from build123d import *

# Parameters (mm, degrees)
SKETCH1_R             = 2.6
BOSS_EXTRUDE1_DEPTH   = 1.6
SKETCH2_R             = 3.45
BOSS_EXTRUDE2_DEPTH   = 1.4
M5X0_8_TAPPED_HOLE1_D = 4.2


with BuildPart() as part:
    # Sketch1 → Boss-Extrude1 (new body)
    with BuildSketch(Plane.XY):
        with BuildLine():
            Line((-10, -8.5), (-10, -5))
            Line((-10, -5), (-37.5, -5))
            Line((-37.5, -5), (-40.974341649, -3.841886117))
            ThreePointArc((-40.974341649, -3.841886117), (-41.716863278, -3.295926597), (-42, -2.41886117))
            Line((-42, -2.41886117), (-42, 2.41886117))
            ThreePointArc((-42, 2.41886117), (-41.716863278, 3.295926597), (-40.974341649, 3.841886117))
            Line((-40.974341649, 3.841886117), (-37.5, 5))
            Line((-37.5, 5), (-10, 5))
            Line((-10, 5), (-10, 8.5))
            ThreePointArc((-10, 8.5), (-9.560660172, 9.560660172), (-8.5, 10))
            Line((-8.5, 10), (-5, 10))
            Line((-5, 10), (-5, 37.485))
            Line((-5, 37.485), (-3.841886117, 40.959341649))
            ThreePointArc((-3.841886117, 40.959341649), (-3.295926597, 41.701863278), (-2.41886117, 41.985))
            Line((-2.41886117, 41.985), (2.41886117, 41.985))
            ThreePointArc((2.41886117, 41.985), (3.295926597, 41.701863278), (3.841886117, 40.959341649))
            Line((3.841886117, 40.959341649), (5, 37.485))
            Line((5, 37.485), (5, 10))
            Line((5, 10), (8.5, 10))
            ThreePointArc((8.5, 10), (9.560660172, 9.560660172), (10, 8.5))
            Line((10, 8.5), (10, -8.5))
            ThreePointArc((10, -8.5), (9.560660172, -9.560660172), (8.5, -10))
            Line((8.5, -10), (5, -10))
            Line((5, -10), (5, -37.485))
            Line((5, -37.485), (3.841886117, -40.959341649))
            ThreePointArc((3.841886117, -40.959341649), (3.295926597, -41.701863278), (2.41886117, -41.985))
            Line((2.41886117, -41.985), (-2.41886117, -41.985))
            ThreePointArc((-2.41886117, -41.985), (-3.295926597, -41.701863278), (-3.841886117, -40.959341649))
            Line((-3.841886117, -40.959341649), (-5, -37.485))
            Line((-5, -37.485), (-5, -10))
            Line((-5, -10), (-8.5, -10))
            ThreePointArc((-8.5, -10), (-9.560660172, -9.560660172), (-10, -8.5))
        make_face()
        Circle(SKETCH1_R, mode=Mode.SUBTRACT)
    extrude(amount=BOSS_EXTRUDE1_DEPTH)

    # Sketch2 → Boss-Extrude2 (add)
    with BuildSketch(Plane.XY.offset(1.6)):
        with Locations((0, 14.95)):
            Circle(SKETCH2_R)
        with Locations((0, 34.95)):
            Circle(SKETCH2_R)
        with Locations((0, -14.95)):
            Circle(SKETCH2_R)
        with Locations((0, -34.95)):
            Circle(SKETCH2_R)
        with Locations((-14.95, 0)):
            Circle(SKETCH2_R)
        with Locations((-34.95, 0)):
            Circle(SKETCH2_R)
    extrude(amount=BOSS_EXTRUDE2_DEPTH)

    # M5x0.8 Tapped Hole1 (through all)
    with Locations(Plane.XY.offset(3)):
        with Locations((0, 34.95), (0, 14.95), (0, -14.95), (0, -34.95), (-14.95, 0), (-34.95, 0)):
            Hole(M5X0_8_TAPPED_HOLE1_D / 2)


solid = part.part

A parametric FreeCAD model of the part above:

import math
import FreeCAD as App
import Part
import Sketcher
from FreeCAD import Vector

doc = App.newDocument("Part")
body = doc.addObject("PartDesign::Body", "Body")

# Sketch on XY plane
sketch1 = body.newObject("Sketcher::SketchObject", "Sketch")
sketch1.AttachmentSupport = (doc.getObject("XY_Plane"), [""])
sketch1.MapMode = "FlatFace"
sketch1.addGeometry(Part.LineSegment(Vector(-10, -5, 0), Vector(-10, -8.5, 0)), False)
sketch1.addGeometry(Part.ArcOfCircle(Part.Circle(Vector(-8.5, -8.5, 0), Vector(0, 0, 1), 1.5), math.radians(180), math.radians(270)), False)
sketch1.addGeometry(Part.LineSegment(Vector(-8.5, -10, 0), Vector(-5, -10, 0)), False)
sketch1.addGeometry(Part.LineSegment(Vector(-5, -10, 0), Vector(-5, -37.485, 0)), False)
sketch1.addGeometry(Part.LineSegment(Vector(-5, -37.485, 0), Vector(-3.841886, -40.959342, 0)), False)
sketch1.addGeometry(Part.ArcOfCircle(Part.Circle(Vector(-2.418861, -40.485, 0), Vector(0, 0, 1), 1.5), math.radians(-161.565051), math.radians(-90)), False)
sketch1.addGeometry(Part.LineSegment(Vector(-2.418861, -41.985, 0), Vector(2.418861, -41.985, 0)), False)
sketch1.addGeometry(Part.ArcOfCircle(Part.Circle(Vector(2.418861, -40.485, 0), Vector(0, 0, 1), 1.5), math.radians(-90), math.radians(-18.434949)), False)
sketch1.addGeometry(Part.LineSegment(Vector(3.841886, -40.959342, 0), Vector(5, -37.485, 0)), False)
sketch1.addGeometry(Part.LineSegment(Vector(5, -37.485, 0), Vector(5, -10, 0)), False)
sketch1.addGeometry(Part.LineSegment(Vector(5, -10, 0), Vector(8.5, -10, 0)), False)
sketch1.addGeometry(Part.ArcOfCircle(Part.Circle(Vector(8.5, -8.5, 0), Vector(0, 0, 1), 1.5), math.radians(-90), math.radians(0)), False)
sketch1.addGeometry(Part.LineSegment(Vector(10, -8.5, 0), Vector(10, 8.5, 0)), False)
sketch1.addGeometry(Part.ArcOfCircle(Part.Circle(Vector(8.5, 8.5, 0), Vector(0, 0, 1), 1.5), math.radians(0), math.radians(90)), False)
sketch1.addGeometry(Part.LineSegment(Vector(8.5, 10, 0), Vector(5, 10, 0)), False)
sketch1.addGeometry(Part.LineSegment(Vector(5, 10, 0), Vector(5, 37.485, 0)), False)
sketch1.addGeometry(Part.LineSegment(Vector(5, 37.485, 0), Vector(3.841886, 40.959342, 0)), False)
sketch1.addGeometry(Part.ArcOfCircle(Part.Circle(Vector(2.418861, 40.485, 0), Vector(0, 0, 1), 1.5), math.radians(18.434949), math.radians(90)), False)
sketch1.addGeometry(Part.LineSegment(Vector(2.418861, 41.985, 0), Vector(-2.418861, 41.985, 0)), False)
sketch1.addGeometry(Part.ArcOfCircle(Part.Circle(Vector(-2.418861, 40.485, 0), Vector(0, 0, 1), 1.5), math.radians(90), math.radians(161.565051)), False)
sketch1.addGeometry(Part.LineSegment(Vector(-3.841886, 40.959342, 0), Vector(-5, 37.485, 0)), False)
sketch1.addGeometry(Part.LineSegment(Vector(-5, 37.485, 0), Vector(-5, 10, 0)), False)
sketch1.addGeometry(Part.LineSegment(Vector(-5, 10, 0), Vector(-8.5, 10, 0)), False)
sketch1.addGeometry(Part.ArcOfCircle(Part.Circle(Vector(-8.5, 8.5, 0), Vector(0, 0, 1), 1.5), math.radians(90), math.radians(180)), False)
sketch1.addGeometry(Part.LineSegment(Vector(-10, 8.5, 0), Vector(-10, 5, 0)), False)
sketch1.addGeometry(Part.LineSegment(Vector(-10, 5, 0), Vector(-37.5, 5, 0)), False)
sketch1.addGeometry(Part.LineSegment(Vector(-37.5, 5, 0), Vector(-40.974342, 3.841886, 0)), False)
sketch1.addGeometry(Part.ArcOfCircle(Part.Circle(Vector(-40.5, 2.418861, 0), Vector(0, 0, 1), 1.5), math.radians(108.434949), math.radians(180)), False)
sketch1.addGeometry(Part.LineSegment(Vector(-42, 2.418861, 0), Vector(-42, -2.418861, 0)), False)
sketch1.addGeometry(Part.ArcOfCircle(Part.Circle(Vector(-40.5, -2.418861, 0), Vector(0, 0, 1), 1.5), math.radians(180), math.radians(251.565051)), False)
sketch1.addGeometry(Part.LineSegment(Vector(-40.974342, -3.841886, 0), Vector(-37.5, -5, 0)), False)
sketch1.addGeometry(Part.LineSegment(Vector(-37.5, -5, 0), Vector(-10, -5, 0)), False)
sketch1.addGeometry(Part.Circle(Vector(0, 0, 0), Vector(0, 0, 1), 2.6), False)
sketch1.addConstraint(Sketcher.Constraint("Tangent", 0, 2, 1, 1))
sketch1.addConstraint(Sketcher.Constraint("Tangent", 1, 2, 2, 1))
sketch1.addConstraint(Sketcher.Constraint("Coincident", 2, 2, 3, 1))
sketch1.addConstraint(Sketcher.Constraint("Coincident", 3, 2, 4, 1))
sketch1.addConstraint(Sketcher.Constraint("Tangent", 4, 2, 5, 1))
sketch1.addConstraint(Sketcher.Constraint("Tangent", 5, 2, 6, 1))
sketch1.addConstraint(Sketcher.Constraint("Tangent", 6, 2, 7, 1))
sketch1.addConstraint(Sketcher.Constraint("Tangent", 7, 2, 8, 1))
sketch1.addConstraint(Sketcher.Constraint("Coincident", 8, 2, 9, 1))
sketch1.addConstraint(Sketcher.Constraint("Coincident", 9, 2, 10, 1))
sketch1.addConstraint(Sketcher.Constraint("Tangent", 10, 2, 11, 1))
sketch1.addConstraint(Sketcher.Constraint("Tangent", 11, 2, 12, 1))
sketch1.addConstraint(Sketcher.Constraint("Tangent", 12, 2, 13, 1))
sketch1.addConstraint(Sketcher.Constraint("Tangent", 13, 2, 14, 1))
sketch1.addConstraint(Sketcher.Constraint("Coincident", 14, 2, 15, 1))
sketch1.addConstraint(Sketcher.Constraint("Coincident", 15, 2, 16, 1))
sketch1.addConstraint(Sketcher.Constraint("Tangent", 16, 2, 17, 1))
sketch1.addConstraint(Sketcher.Constraint("Tangent", 17, 2, 18, 1))
sketch1.addConstraint(Sketcher.Constraint("Tangent", 18, 2, 19, 1))
sketch1.addConstraint(Sketcher.Constraint("Tangent", 19, 2, 20, 1))
sketch1.addConstraint(Sketcher.Constraint("Coincident", 20, 2, 21, 1))
sketch1.addConstraint(Sketcher.Constraint("Coincident", 21, 2, 22, 1))
sketch1.addConstraint(Sketcher.Constraint("Tangent", 22, 2, 23, 1))
sketch1.addConstraint(Sketcher.Constraint("Tangent", 23, 2, 24, 1))
sketch1.addConstraint(Sketcher.Constraint("Coincident", 24, 2, 25, 1))
sketch1.addConstraint(Sketcher.Constraint("Coincident", 25, 2, 26, 1))
sketch1.addConstraint(Sketcher.Constraint("Tangent", 26, 2, 27, 1))
sketch1.addConstraint(Sketcher.Constraint("Tangent", 27, 2, 28, 1))
sketch1.addConstraint(Sketcher.Constraint("Tangent", 28, 2, 29, 1))
sketch1.addConstraint(Sketcher.Constraint("Tangent", 29, 2, 30, 1))
sketch1.addConstraint(Sketcher.Constraint("Coincident", 30, 2, 31, 1))
sketch1.addConstraint(Sketcher.Constraint("Coincident", 31, 2, 0, 1))
sketch1.addConstraint(Sketcher.Constraint("Vertical", 0))
sketch1.addConstraint(Sketcher.Constraint("Horizontal", 2))
sketch1.addConstraint(Sketcher.Constraint("Vertical", 3))
sketch1.addConstraint(Sketcher.Constraint("Horizontal", 6))
sketch1.addConstraint(Sketcher.Constraint("Vertical", 9))
sketch1.addConstraint(Sketcher.Constraint("Horizontal", 10))
sketch1.addConstraint(Sketcher.Constraint("Vertical", 12))
sketch1.addConstraint(Sketcher.Constraint("Horizontal", 14))
sketch1.addConstraint(Sketcher.Constraint("Vertical", 15))
sketch1.addConstraint(Sketcher.Constraint("Horizontal", 18))
sketch1.addConstraint(Sketcher.Constraint("Vertical", 21))
sketch1.addConstraint(Sketcher.Constraint("Horizontal", 22))
sketch1.addConstraint(Sketcher.Constraint("Vertical", 24))
sketch1.addConstraint(Sketcher.Constraint("Horizontal", 25))
sketch1.addConstraint(Sketcher.Constraint("Vertical", 28))
sketch1.addConstraint(Sketcher.Constraint("Horizontal", 31))
sketch1.addConstraint(Sketcher.Constraint("Coincident", 32, 3, -1, 1))
sketch1.addConstraint(Sketcher.Constraint("Equal", 1, 5))
sketch1.addConstraint(Sketcher.Constraint("Equal", 5, 7))
sketch1.addConstraint(Sketcher.Constraint("Equal", 7, 11))
sketch1.addConstraint(Sketcher.Constraint("Equal", 11, 13))
sketch1.addConstraint(Sketcher.Constraint("Equal", 13, 17))
sketch1.addConstraint(Sketcher.Constraint("Equal", 17, 19))
sketch1.addConstraint(Sketcher.Constraint("Equal", 19, 23))
sketch1.addConstraint(Sketcher.Constraint("Equal", 23, 27))
sketch1.addConstraint(Sketcher.Constraint("Equal", 27, 29))
sketch1.addConstraint(Sketcher.Constraint("Symmetric", 1, 3, 13, 3, -1, 1))
sketch1.addConstraint(Sketcher.Constraint("Symmetric", 5, 3, 17, 3, -1, 1))
sketch1.addConstraint(Sketcher.Constraint("Symmetric", 11, 3, 23, 3, -1, 1))
sketch1.addConstraint(Sketcher.Constraint("Symmetric", 3, 2, 15, 2, -1, 1))
sketch1.addConstraint(Sketcher.Constraint("Symmetric", 7, 2, 19, 2, -1, 1))
sketch1.addConstraint(Sketcher.Constraint("Symmetric", 4, 2, 7, 2, -2))
sketch1.addConstraint(Sketcher.Constraint("Symmetric", 2, 2, 9, 2, -2))
sketch1.addConstraint(Sketcher.Constraint("Symmetric", 26, 2, 29, 2, -1))
sketch1.addConstraint(Sketcher.Constraint("Perpendicular", 16, 26))
sketch1.addConstraint(Sketcher.Constraint("Horizontal", 15, 2, 20, 2))
sketch1.addConstraint(Sketcher.Constraint("Vertical", 25, 2, 30, 2))
sketch1.addConstraint(Sketcher.Constraint("Equal", 22, 0))
sketch1.addConstraint(Sketcher.Constraint("Equal", 18, 28))
sketch1.addConstraint(Sketcher.Constraint("Equal", 20, 26))
sketch1.addConstraint(Sketcher.Constraint("Diameter", 32, 5.2))
sketch1.addConstraint(Sketcher.Constraint("Radius", 1, 1.5))
sketch1.addConstraint(Sketcher.Constraint("DistanceY", 12, 1, 12, 2, 17.0))
sketch1.addConstraint(Sketcher.Constraint("DistanceX", 2, 1, 2, 2, 3.5))
sketch1.addConstraint(Sketcher.Constraint("DistanceX", 25, 2, 25, 1, 27.5))
sketch1.addConstraint(Sketcher.Constraint("DistanceX", 27, 2, -1, 1, 42.0))
sketch1.addConstraint(Sketcher.Constraint("DistanceY", 3, 2, 3, 1, 27.485))
sketch1.addConstraint(Sketcher.Constraint("DistanceX", 6, 1, 6, 2, 4.837722))
pad1 = body.newObject("PartDesign::Pad", "Pad")
pad1.Profile = sketch1
pad1.Length = 1.6

# Sketch on XY plane
sketch2 = body.newObject("Sketcher::SketchObject", "Sketch001")
sketch2.AttachmentSupport = (doc.getObject("XY_Plane"), [""])
sketch2.MapMode = "FlatFace"
sketch2.AttachmentOffset = App.Placement(Vector(0, 0, 1.6), App.Rotation())
sketch2.addGeometry(Part.Circle(Vector(0, 14.95, 0), Vector(0, 0, 1), 3.45), False)
sketch2.addGeometry(Part.Circle(Vector(0, 34.95, 0), Vector(0, 0, 1), 3.45), False)
sketch2.addGeometry(Part.Circle(Vector(0, -14.95, 0), Vector(0, 0, 1), 3.45), False)
sketch2.addGeometry(Part.Circle(Vector(0, -34.95, 0), Vector(0, 0, 1), 3.45), False)
sketch2.addGeometry(Part.Circle(Vector(-14.95, 0, 0), Vector(0, 0, 1), 3.45), False)
sketch2.addGeometry(Part.Circle(Vector(-34.95, 0, 0), Vector(0, 0, 1), 3.45), False)
sketch2.addConstraint(Sketcher.Constraint("Equal", 0, 1))
sketch2.addConstraint(Sketcher.Constraint("Equal", 1, 2))
sketch2.addConstraint(Sketcher.Constraint("Equal", 2, 3))
sketch2.addConstraint(Sketcher.Constraint("Equal", 3, 4))
sketch2.addConstraint(Sketcher.Constraint("Equal", 4, 5))
sketch2.addConstraint(Sketcher.Constraint("Symmetric", 0, 3, 2, 3, -1, 1))
sketch2.addConstraint(Sketcher.Constraint("Symmetric", 1, 3, 3, 3, -1, 1))
sketch2.addConstraint(Sketcher.Constraint("PointOnObject", 0, 3, -2))
sketch2.addConstraint(Sketcher.Constraint("PointOnObject", 1, 3, -2))
sketch2.addConstraint(Sketcher.Constraint("PointOnObject", 4, 3, -1))
sketch2.addConstraint(Sketcher.Constraint("PointOnObject", 5, 3, -1))
sketch2.addConstraint(Sketcher.Constraint("Diameter", 0, 6.9))
sketch2.addConstraint(Sketcher.Constraint("DistanceY", 0, 3, 1, 3, 20.0))
sketch2.addConstraint(Sketcher.Constraint("DistanceX", 5, 3, 4, 3, 20.0))
sketch2.addConstraint(Sketcher.Constraint("DistanceY", 2, 3, 0, 3, 29.9))
sketch2.addConstraint(Sketcher.Constraint("DistanceX", 4, 3, -1, 1, 14.95))
pad2 = body.newObject("PartDesign::Pad", "Pad001")
pad2.Profile = sketch2
pad2.Length = 1.4

# Sketch on XY plane
sketch3 = body.newObject("Sketcher::SketchObject", "Sketch002")
sketch3.AttachmentSupport = (doc.getObject("XY_Plane"), [""])
sketch3.MapMode = "FlatFace"
sketch3.AttachmentOffset = App.Placement(Vector(0, 0, 3), App.Rotation())
sketch3.addGeometry(Part.Circle(Vector(0, 34.95, 0), Vector(0, 0, 1), 2.1), False)
sketch3.addGeometry(Part.Circle(Vector(0, 14.95, 0), Vector(0, 0, 1), 2.1), False)
sketch3.addGeometry(Part.Circle(Vector(0, -14.95, 0), Vector(0, 0, 1), 2.1), False)
sketch3.addGeometry(Part.Circle(Vector(0, -34.95, 0), Vector(0, 0, 1), 2.1), False)
sketch3.addGeometry(Part.Circle(Vector(-14.95, 0, 0), Vector(0, 0, 1), 2.1), False)
sketch3.addGeometry(Part.Circle(Vector(-34.95, 0, 0), Vector(0, 0, 1), 2.1), False)
sketch3.addConstraint(Sketcher.Constraint("Equal", 0, 1))
sketch3.addConstraint(Sketcher.Constraint("Equal", 1, 2))
sketch3.addConstraint(Sketcher.Constraint("Equal", 2, 3))
sketch3.addConstraint(Sketcher.Constraint("Equal", 3, 4))
sketch3.addConstraint(Sketcher.Constraint("Equal", 4, 5))
sketch3.addConstraint(Sketcher.Constraint("Symmetric", 1, 3, 2, 3, -1, 1))
sketch3.addConstraint(Sketcher.Constraint("Symmetric", 0, 3, 3, 3, -1, 1))
sketch3.addConstraint(Sketcher.Constraint("PointOnObject", 0, 3, -2))
sketch3.addConstraint(Sketcher.Constraint("PointOnObject", 1, 3, -2))
sketch3.addConstraint(Sketcher.Constraint("PointOnObject", 4, 3, -1))
sketch3.addConstraint(Sketcher.Constraint("PointOnObject", 5, 3, -1))
sketch3.addConstraint(Sketcher.Constraint("Diameter", 0, 4.2))
sketch3.addConstraint(Sketcher.Constraint("DistanceY", 1, 3, 0, 3, 20.0))
sketch3.addConstraint(Sketcher.Constraint("DistanceX", 5, 3, 4, 3, 20.0))
sketch3.addConstraint(Sketcher.Constraint("DistanceY", 2, 3, 1, 3, 29.9))
sketch3.addConstraint(Sketcher.Constraint("DistanceX", 4, 3, -1, 1, 14.95))
doc.recompute()
hole = body.newObject("PartDesign::Hole", "Hole")
hole.Profile = sketch3
hole.ThreadType = "None"
hole.Diameter = 4.2
hole.DepthType = "ThroughAll"

doc.recompute()
